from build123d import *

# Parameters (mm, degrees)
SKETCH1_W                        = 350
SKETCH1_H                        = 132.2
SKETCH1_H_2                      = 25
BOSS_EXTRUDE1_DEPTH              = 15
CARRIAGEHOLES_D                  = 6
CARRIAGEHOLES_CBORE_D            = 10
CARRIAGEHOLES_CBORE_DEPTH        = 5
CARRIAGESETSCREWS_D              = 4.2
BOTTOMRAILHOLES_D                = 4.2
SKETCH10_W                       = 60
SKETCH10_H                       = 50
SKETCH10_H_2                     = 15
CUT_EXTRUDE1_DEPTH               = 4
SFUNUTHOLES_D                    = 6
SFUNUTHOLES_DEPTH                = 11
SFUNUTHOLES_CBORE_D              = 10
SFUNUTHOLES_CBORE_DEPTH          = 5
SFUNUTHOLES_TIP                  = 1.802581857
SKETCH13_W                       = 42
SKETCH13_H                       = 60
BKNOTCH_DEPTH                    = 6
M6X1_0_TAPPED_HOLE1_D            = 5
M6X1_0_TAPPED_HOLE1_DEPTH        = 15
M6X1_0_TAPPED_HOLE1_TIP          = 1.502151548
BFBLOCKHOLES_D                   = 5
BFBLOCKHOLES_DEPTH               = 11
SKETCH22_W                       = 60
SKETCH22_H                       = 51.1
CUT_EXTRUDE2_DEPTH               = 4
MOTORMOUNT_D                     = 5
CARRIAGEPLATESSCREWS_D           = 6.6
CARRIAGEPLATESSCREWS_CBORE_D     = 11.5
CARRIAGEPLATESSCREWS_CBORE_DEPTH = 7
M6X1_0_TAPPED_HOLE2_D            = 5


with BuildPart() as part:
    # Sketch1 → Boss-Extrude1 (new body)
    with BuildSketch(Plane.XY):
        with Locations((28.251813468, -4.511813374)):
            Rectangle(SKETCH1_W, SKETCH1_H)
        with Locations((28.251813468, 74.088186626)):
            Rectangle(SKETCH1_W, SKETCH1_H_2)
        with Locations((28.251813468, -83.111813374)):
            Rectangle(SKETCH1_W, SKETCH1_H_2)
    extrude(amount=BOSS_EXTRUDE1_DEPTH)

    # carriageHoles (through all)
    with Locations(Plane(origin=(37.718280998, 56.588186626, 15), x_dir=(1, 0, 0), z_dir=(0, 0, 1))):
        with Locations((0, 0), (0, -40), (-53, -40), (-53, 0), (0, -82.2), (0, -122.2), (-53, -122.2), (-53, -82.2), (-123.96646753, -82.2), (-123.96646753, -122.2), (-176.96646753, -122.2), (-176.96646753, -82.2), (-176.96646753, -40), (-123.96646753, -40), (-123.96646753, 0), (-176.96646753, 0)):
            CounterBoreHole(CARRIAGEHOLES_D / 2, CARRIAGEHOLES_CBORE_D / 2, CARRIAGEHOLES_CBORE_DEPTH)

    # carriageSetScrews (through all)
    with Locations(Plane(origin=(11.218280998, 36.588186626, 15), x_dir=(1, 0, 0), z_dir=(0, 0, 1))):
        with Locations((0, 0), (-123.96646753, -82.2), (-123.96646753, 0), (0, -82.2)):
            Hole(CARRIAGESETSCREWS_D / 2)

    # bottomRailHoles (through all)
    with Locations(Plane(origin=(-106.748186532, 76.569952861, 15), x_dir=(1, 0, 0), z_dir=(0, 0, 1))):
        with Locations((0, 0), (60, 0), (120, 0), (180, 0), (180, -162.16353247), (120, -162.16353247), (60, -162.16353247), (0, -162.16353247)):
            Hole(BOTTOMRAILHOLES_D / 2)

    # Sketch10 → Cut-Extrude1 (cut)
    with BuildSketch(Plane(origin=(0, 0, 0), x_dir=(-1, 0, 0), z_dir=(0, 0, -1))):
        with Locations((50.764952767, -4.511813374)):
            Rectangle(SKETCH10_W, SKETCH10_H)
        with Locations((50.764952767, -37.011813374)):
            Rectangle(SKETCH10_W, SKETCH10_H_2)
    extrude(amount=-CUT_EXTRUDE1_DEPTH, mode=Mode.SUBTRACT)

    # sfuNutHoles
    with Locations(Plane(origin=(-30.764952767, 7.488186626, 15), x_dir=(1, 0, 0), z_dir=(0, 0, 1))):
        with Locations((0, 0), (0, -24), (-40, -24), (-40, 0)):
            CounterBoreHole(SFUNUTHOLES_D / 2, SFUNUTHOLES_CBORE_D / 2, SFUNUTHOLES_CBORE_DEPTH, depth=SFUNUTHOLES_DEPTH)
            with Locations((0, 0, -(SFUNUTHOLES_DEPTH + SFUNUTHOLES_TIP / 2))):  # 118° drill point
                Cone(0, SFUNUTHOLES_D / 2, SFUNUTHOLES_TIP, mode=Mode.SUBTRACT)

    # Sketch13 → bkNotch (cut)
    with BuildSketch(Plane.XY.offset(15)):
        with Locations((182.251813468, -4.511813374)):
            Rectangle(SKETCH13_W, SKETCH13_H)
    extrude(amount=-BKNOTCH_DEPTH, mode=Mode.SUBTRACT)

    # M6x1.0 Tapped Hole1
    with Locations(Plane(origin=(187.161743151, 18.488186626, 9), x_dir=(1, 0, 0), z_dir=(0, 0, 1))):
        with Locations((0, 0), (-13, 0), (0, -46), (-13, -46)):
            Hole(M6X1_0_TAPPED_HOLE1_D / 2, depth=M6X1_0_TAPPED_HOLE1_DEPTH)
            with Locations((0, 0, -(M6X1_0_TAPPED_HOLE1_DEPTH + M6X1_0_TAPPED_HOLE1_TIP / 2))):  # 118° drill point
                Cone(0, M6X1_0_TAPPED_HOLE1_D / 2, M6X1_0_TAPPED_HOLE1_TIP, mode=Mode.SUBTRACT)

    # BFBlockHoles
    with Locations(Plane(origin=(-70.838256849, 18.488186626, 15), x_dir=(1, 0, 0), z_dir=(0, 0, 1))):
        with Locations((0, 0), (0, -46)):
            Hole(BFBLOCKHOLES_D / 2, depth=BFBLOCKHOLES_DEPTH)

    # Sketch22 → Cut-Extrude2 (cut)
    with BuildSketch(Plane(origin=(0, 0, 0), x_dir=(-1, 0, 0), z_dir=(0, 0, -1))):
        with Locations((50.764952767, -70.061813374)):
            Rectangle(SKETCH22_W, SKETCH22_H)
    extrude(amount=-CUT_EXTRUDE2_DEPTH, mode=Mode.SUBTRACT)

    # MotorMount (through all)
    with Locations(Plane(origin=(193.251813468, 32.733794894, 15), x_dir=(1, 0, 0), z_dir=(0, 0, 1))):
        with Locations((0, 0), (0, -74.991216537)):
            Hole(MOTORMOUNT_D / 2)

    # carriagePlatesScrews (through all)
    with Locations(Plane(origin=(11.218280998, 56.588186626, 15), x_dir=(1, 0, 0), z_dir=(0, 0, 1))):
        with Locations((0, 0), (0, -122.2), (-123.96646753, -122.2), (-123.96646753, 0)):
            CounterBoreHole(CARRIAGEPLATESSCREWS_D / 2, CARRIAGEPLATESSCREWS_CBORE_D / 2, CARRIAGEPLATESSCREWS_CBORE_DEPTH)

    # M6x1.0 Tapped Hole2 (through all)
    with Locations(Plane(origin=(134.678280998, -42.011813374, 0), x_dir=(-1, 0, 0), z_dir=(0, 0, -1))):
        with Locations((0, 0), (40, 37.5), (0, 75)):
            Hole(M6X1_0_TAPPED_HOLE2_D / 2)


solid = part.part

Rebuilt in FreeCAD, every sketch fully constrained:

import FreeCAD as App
import Part
import Sketcher
Q = App.Units.Quantity

doc = App.newDocument("Part")
body = doc.addObject("PartDesign::Body", "Body")

# Sketch on XY plane
sketch1 = body.newObject("Sketcher::SketchObject", "Sketch")
sketch1.AttachmentSupport = (doc.getObject("XY_Plane"), [""])
sketch1.MapMode = "FlatFace"
sketch1.addGeometry([
    Part.LineSegment(App.Vector(203, 87, 0), App.Vector(-147, 87, 0)),
    Part.LineSegment(App.Vector(-147, 87, 0), App.Vector(-147, -96, 0)),
    Part.LineSegment(App.Vector(-147, -96, 0), App.Vector(203, -96, 0)),
    Part.LineSegment(App.Vector(203, -96, 0), App.Vector(203, 87, 0)),
], False)
sketch1.addConstraint([
    Sketcher.Constraint("Coincident", 0, 2, 1, 1),
    Sketcher.Constraint("Coincident", 1, 2, 2, 1),
    Sketcher.Constraint("Coincident", 2, 2, 3, 1),
    Sketcher.Constraint("Coincident", 3, 2, 0, 1),
    Sketcher.Constraint("Horizontal", 0),
    Sketcher.Constraint("Vertical", 1),
    Sketcher.Constraint("Horizontal", 2),
    Sketcher.Constraint("Vertical", 3),
    Sketcher.Constraint("DistanceX", 0, 2, 0, 1, Q("350 mm")),
    Sketcher.Constraint("DistanceY", 1, 2, 1, 1, Q("182.2 mm")),
    Sketcher.Constraint("DistanceX", 0, 2, -1, 1, Q("146.748187 mm")),
    Sketcher.Constraint("DistanceY", -1, 1, 0, 2, Q("86.588187 mm")),
])
pad1 = body.newObject("PartDesign::Pad", "Pad")
pad1.Profile = sketch1
pad1.Length = 15

# Sketch on XY plane
sketch2 = body.newObject("Sketcher::SketchObject", "Sketch001")
sketch2.AttachmentSupport = (doc.getObject("XY_Plane"), [""])
sketch2.MapMode = "FlatFace"
sketch2.AttachmentOffset = App.Placement(App.Vector(0, 0, 15), App.Rotation())
sketch2.addGeometry([
    Part.Circle(App.Vector(37.7, 56.6, 0), App.Vector(0, 0, 1), 3),  # 0
    Part.Circle(App.Vector(37.7, 16.6, 0), App.Vector(0, 0, 1), 3),  # 1
    Part.Circle(App.Vector(-15.3, 16.6, 0), App.Vector(0, 0, 1), 3),  # 2
    Part.Circle(App.Vector(-15.3, 56.6, 0), App.Vector(0, 0, 1), 3),  # 3
    Part.Circle(App.Vector(37.7, -25.6, 0), App.Vector(0, 0, 1), 3),  # 4
    Part.Circle(App.Vector(37.7, -65.6, 0), App.Vector(0, 0, 1), 3),  # 5
    Part.Circle(App.Vector(-15.3, -65.6, 0), App.Vector(0, 0, 1), 3),  # 6
    Part.Circle(App.Vector(-15.3, -25.6, 0), App.Vector(0, 0, 1), 3),  # 7
    Part.Circle(App.Vector(-86.2, -25.6, 0), App.Vector(0, 0, 1), 3),  # 8
    Part.Circle(App.Vector(-86.2, -65.6, 0), App.Vector(0, 0, 1), 3),  # 9
    Part.Circle(App.Vector(-139.2, -65.6, 0), App.Vector(0, 0, 1), 3),  # 10
    Part.Circle(App.Vector(-139.2, -25.6, 0), App.Vector(0, 0, 1), 3),  # 11
    Part.Circle(App.Vector(-139.2, 16.6, 0), App.Vector(0, 0, 1), 3),  # 12
    Part.Circle(App.Vector(-86.2, 16.6, 0), App.Vector(0, 0, 1), 3),  # 13
    Part.Circle(App.Vector(-86.2, 56.6, 0), App.Vector(0, 0, 1), 3),  # 14
    Part.Circle(App.Vector(-139.2, 56.6, 0), App.Vector(0, 0, 1), 3),  # 15
], False)
sketch2.addConstraint([
    Sketcher.Constraint("Equal", 0, 1),
    Sketcher.Constraint("Equal", 1, 2),
    Sketcher.Constraint("Equal", 2, 3),
    Sketcher.Constraint("Equal", 3, 4),
    Sketcher.Constraint("Equal", 4, 5),
    Sketcher.Constraint("Equal", 5, 6),
    Sketcher.Constraint("Equal", 6, 7),
    Sketcher.Constraint("Equal", 7, 8),
    Sketcher.Constraint("Equal", 8, 9),
    Sketcher.Constraint("Equal", 9, 10),
    Sketcher.Constraint("Equal", 10, 11),
    Sketcher.Constraint("Equal", 11, 12),
    Sketcher.Constraint("Equal", 12, 13),
    Sketcher.Constraint("Equal", 13, 14),
    Sketcher.Constraint("Equal", 14, 15),
    Sketcher.Constraint("Horizontal", 1, 3, 2, 3),
    Sketcher.Constraint("Horizontal", 0, 3, 3, 3),
    Sketcher.Constraint("Horizontal", 5, 3, 6, 3),
    Sketcher.Constraint("Horizontal", 4, 3, 7, 3),
    Sketcher.Constraint("Horizontal", 7, 3, 8, 3),
    Sketcher.Constraint("Horizontal", 6, 3, 9, 3),
    Sketcher.Constraint("Horizontal", 9, 3, 10, 3),
    Sketcher.Constraint("Horizontal", 8, 3, 11, 3),
    Sketcher.Constraint("Horizontal", 2, 3, 12, 3),
    Sketcher.Constraint("Horizontal", 12, 3, 13, 3),
    Sketcher.Constraint("Horizontal", 3, 3, 14, 3),
    Sketcher.Constraint("Horizontal", 14, 3, 15, 3),
    Sketcher.Constraint("Vertical", 0, 3, 1, 3),
    Sketcher.Constraint("Vertical", 2, 3, 3, 3),
    Sketcher.Constraint("Vertical", 1, 3, 4, 3),
    Sketcher.Constraint("Vertical", 4, 3, 5, 3),
    Sketcher.Constraint("Vertical", 3, 3, 6, 3),
    Sketcher.Constraint("Vertical", 6, 3, 7, 3),
    Sketcher.Constraint("Vertical", 8, 3, 9, 3),
    Sketcher.Constraint("Vertical", 10, 3, 11, 3),
    Sketcher.Constraint("Vertical", 11, 3, 12, 3),
    Sketcher.Constraint("Vertical", 9, 3, 13, 3),
    Sketcher.Constraint("Vertical", 13, 3, 14, 3),
    Sketcher.Constraint("Vertical", 12, 3, 15, 3),
    Sketcher.Constraint("Diameter", 0, Q("6 mm")),
    Sketcher.Constraint("DistanceY", 1, 3, 0, 3, Q("40 mm")),
    Sketcher.Constraint("DistanceX", 2, 3, 1, 3, Q("53 mm")),
    Sketcher.Constraint("DistanceY", 5, 3, 4, 3, Q("40 mm")),
    Sketcher.Constraint("DistanceX", 10, 3, 9, 3, Q("53 mm")),
    Sketcher.Constraint("DistanceY", 4, 3, 1, 3, Q("42.2 mm")),
    Sketcher.Constraint("DistanceX", -1, 1, 0, 3, Q("37.718281 mm")),
    Sketcher.Constraint("DistanceY", -1, 1, 0, 3, Q("56.588187 mm")),
    Sketcher.Constraint("DistanceX", 8, 3, -1, 1, Q("86.248187 mm")),
])
doc.recompute()
hole = body.newObject("PartDesign::Hole", "Hole")
hole.Profile = sketch2
hole.ThreadType = "None"
hole.Diameter = 6
hole.DepthType = "ThroughAll"
hole.HoleCutType = "Counterbore"
hole.HoleCutDiameter = 10
hole.HoleCutDepth = 5

# Sketch on XY plane
sketch3 = body.newObject("Sketcher::SketchObject", "Sketch002")
sketch3.AttachmentSupport = (doc.getObject("XY_Plane"), [""])
sketch3.MapMode = "FlatFace"
sketch3.AttachmentOffset = App.Placement(App.Vector(0, 0, 15), App.Rotation())
sketch3.addGeometry([
    Part.Circle(App.Vector(11.2, 36.6, 0), App.Vector(0, 0, 1), 2.1),
    Part.Circle(App.Vector(-112.7, -45.6, 0), App.Vector(0, 0, 1), 2.1),
    Part.Circle(App.Vector(-112.7, 36.6, 0), App.Vector(0, 0, 1), 2.1),
    Part.Circle(App.Vector(11.2, -45.6, 0), App.Vector(0, 0, 1), 2.1),
], False)
sketch3.addConstraint([
    Sketcher.Constraint("Equal", 0, 1),
    Sketcher.Constraint("Equal", 1, 2),
    Sketcher.Constraint("Equal", 2, 3),
    Sketcher.Constraint("Horizontal", 0, 3, 2, 3),
    Sketcher.Constraint("Horizontal", 1, 3, 3, 3),
    Sketcher.Constraint("Vertical", 1, 3, 2, 3),
    Sketcher.Constraint("Vertical", 0, 3, 3, 3),
    Sketcher.Constraint("Diameter", 0, Q("4.2 mm")),
    Sketcher.Constraint("DistanceY", 1, 3, 0, 3, Q("82.2 mm")),
    Sketcher.Constraint("DistanceX", -1, 1, 0, 3, Q("11.218281 mm")),
    Sketcher.Constraint("DistanceY", -1, 1, 0, 3, Q("36.588187 mm")),
    Sketcher.Constraint("DistanceX", 1, 3, -1, 1, Q("112.748187 mm")),
])
doc.recompute()
hole2 = body.newObject("PartDesign::Hole", "Hole001")
hole2.Profile = sketch3
hole2.ThreadType = "None"
hole2.Diameter = 4.2
hole2.DepthType = "ThroughAll"

# Sketch on XY plane
sketch4 = body.newObject("Sketcher::SketchObject", "Sketch003")
sketch4.AttachmentSupport = (doc.getObject("XY_Plane"), [""])
sketch4.MapMode = "FlatFace"
sketch4.AttachmentOffset = App.Placement(App.Vector(0, 0, 15), App.Rotation())
sketch4.addGeometry([
    Part.Circle(App.Vector(-106.7, 76.6, 0), App.Vector(0, 0, 1), 2.1),  # 0
    Part.Circle(App.Vector(-46.7, 76.6, 0), App.Vector(0, 0, 1), 2.1),  # 1
    Part.Circle(App.Vector(13.3, 76.6, 0), App.Vector(0, 0, 1), 2.1),  # 2
    Part.Circle(App.Vector(73.3, 76.6, 0), App.Vector(0, 0, 1), 2.1),  # 3
    Part.Circle(App.Vector(73.3, -85.6, 0), App.Vector(0, 0, 1), 2.1),  # 4
    Part.Circle(App.Vector(13.3, -85.6, 0), App.Vector(0, 0, 1), 2.1),  # 5
    Part.Circle(App.Vector(-46.7, -85.6, 0), App.Vector(0, 0, 1), 2.1),  # 6
    Part.Circle(App.Vector(-106.7, -85.6, 0), App.Vector(0, 0, 1), 2.1),  # 7
], False)
sketch4.addConstraint([
    Sketcher.Constraint("Equal", 0, 1),
    Sketcher.Constraint("Equal", 1, 2),
    Sketcher.Constraint("Equal", 2, 3),
    Sketcher.Constraint("Equal", 3, 4),
    Sketcher.Constraint("Equal", 4, 5),
    Sketcher.Constraint("Equal", 5, 6),
    Sketcher.Constraint("Equal", 6, 7),
    Sketcher.Constraint("Horizontal", 0, 3, 1, 3),
    Sketcher.Constraint("Horizontal", 1, 3, 2, 3),
    Sketcher.Constraint("Horizontal", 2, 3, 3, 3),
    Sketcher.Constraint("Horizontal", 4, 3, 5, 3),
    Sketcher.Constraint("Horizontal", 5, 3, 6, 3),
    Sketcher.Constraint("Horizontal", 6, 3, 7, 3),
    Sketcher.Constraint("Vertical", 3, 3, 4, 3),
    Sketcher.Constraint("Vertical", 2, 3, 5, 3),
    Sketcher.Constraint("Vertical", 1, 3, 6, 3),
    Sketcher.Constraint("Vertical", 0, 3, 7, 3),
    Sketcher.Constraint("Diameter", 0, Q("4.2 mm")),
    Sketcher.Constraint("DistanceX", 0, 3, 1, 3, Q("60 mm")),
    Sketcher.Constraint("DistanceX", 1, 3, 2, 3, Q("60 mm")),
    Sketcher.Constraint("DistanceX", 2, 3, 3, 3, Q("60 mm")),
    Sketcher.Constraint("DistanceY", 4, 3, -1, 1, Q("85.59358 mm")),
    Sketcher.Constraint("DistanceX", 0, 3, -1, 1, Q("106.748187 mm")),
    Sketcher.Constraint("DistanceY", -1, 1, 0, 3, Q("76.569953 mm")),
])
doc.recompute()
hole3 = body.newObject("PartDesign::Hole", "Hole002")
hole3.Profile = sketch4
hole3.ThreadType = "None"
hole3.Diameter = 4.2
hole3.DepthType = "ThroughAll"

# Sketch on XY plane
sketch5 = body.newObject("Sketcher::SketchObject", "Sketch004")
sketch5.AttachmentSupport = (doc.getObject("XY_Plane"), [""])
sketch5.MapMode = "FlatFace"
sketch5.addGeometry([
    Part.LineSegment(App.Vector(-21, 20, 0), App.Vector(-21, -45, 0)),
    Part.LineSegment(App.Vector(-21, -45, 0), App.Vector(-81, -45, 0)),
    Part.LineSegment(App.Vector(-81, -45, 0), App.Vector(-81, 20, 0)),
    Part.LineSegment(App.Vector(-81, 20, 0), App.Vector(-21, 20, 0)),
], False)
sketch5.addConstraint([
    Sketcher.Constraint("Coincident", 0, 2, 1, 1),
    Sketcher.Constraint("Coincident", 1, 2, 2, 1),
    Sketcher.Constraint("Coincident", 2, 2, 3, 1),
    Sketcher.Constraint("Coincident", 3, 2, 0, 1),
    Sketcher.Constraint("Vertical", 0),
    Sketcher.Constraint("Horizontal", 1),
    Sketcher.Constraint("Vertical", 2),
    Sketcher.Constraint("Horizontal", 3),
    Sketcher.Constraint("DistanceX", 1, 2, 1, 1, Q("60 mm")),
    Sketcher.Constraint("DistanceY", 0, 2, 0, 1, Q("65 mm")),
    Sketcher.Constraint("DistanceX", 0, 2, -1, 1, Q("20.764953 mm")),
    Sketcher.Constraint("DistanceY", 0, 2, -1, 1, Q("44.511813 mm")),
])
pocket1 = body.newObject("PartDesign::Pocket", "Pocket")
pocket1.Profile = sketch5
pocket1.Length = 4
pocket1.Reversed = True

# Sketch on XY plane
sketch6 = body.newObject("Sketcher::SketchObject", "Sketch005")
sketch6.AttachmentSupport = (doc.getObject("XY_Plane"), [""])
sketch6.MapMode = "FlatFace"
sketch6.AttachmentOffset = App.Placement(App.Vector(0, 0, 15), App.Rotation())
sketch6.addGeometry([
    Part.Circle(App.Vector(-30.8, 7.5, 0), App.Vector(0, 0, 1), 3),
    Part.Circle(App.Vector(-30.8, -16.5, 0), App.Vector(0, 0, 1), 3),
    Part.Circle(App.Vector(-70.8, -16.5, 0), App.Vector(0, 0, 1), 3),
    Part.Circle(App.Vector(-70.8, 7.5, 0), App.Vector(0, 0, 1), 3),
], False)
sketch6.addConstraint([
    Sketcher.Constraint("Equal", 0, 1),
    Sketcher.Constraint("Equal", 1, 2),
    Sketcher.Constraint("Equal", 2, 3),
    Sketcher.Constraint("Horizontal", 1, 3, 2, 3),
    Sketcher.Constraint("Horizontal", 0, 3, 3, 3),
    Sketcher.Constraint("Vertical", 0, 3, 1, 3),
    Sketcher.Constraint("Vertical", 2, 3, 3, 3),
    Sketcher.Constraint("Diameter", 0, Q("6 mm")),
    Sketcher.Constraint("DistanceY", 1, 3, 0, 3, Q("24 mm")),
    Sketcher.Constraint("DistanceX", 2, 3, 1, 3, Q("40 mm")),
    Sketcher.Constraint("DistanceX", 0, 3, -1, 1, Q("30.764953 mm")),
    Sketcher.Constraint("DistanceY", -1, 1, 0, 3, Q("7.488187 mm")),
])
doc.recompute()
hole4 = body.newObject("PartDesign::Hole", "Hole003")
hole4.Profile = sketch6
hole4.ThreadType = "None"
hole4.Diameter = 6
hole4.DepthType = "Dimension"
hole4.Depth = 11
hole4.DrillPoint = "Angled"
hole4.DrillPointAngle = 118
hole4.HoleCutType = "Counterbore"
hole4.HoleCutDiameter = 10
hole4.HoleCutDepth = 5

# Sketch on XY plane
sketch7 = body.newObject("Sketcher::SketchObject", "Sketch006")
sketch7.AttachmentSupport = (doc.getObject("XY_Plane"), [""])
sketch7.MapMode = "FlatFace"
sketch7.AttachmentOffset = App.Placement(App.Vector(0, 0, 15), App.Rotation())
sketch7.addGeometry([
    Part.LineSegment(App.Vector(161, 25, 0), App.Vector(161, -35, 0)),
    Part.LineSegment(App.Vector(161, -35, 0), App.Vector(203, -35, 0)),
    Part.LineSegment(App.Vector(203, -35, 0), App.Vector(203, 25, 0)),
    Part.LineSegment(App.Vector(203, 25, 0), App.Vector(161, 25, 0)),
], False)
sketch7.addConstraint([
    Sketcher.Constraint("Coincident", 0, 2, 1, 1),
    Sketcher.Constraint("Coincident", 1, 2, 2, 1),
    Sketcher.Constraint("Coincident", 2, 2, 3, 1),
    Sketcher.Constraint("Coincident", 3, 2, 0, 1),
    Sketcher.Constraint("Vertical", 0),
    Sketcher.Constraint("Horizontal", 1),
    Sketcher.Constraint("Vertical", 2),
    Sketcher.Constraint("Horizontal", 3),
    Sketcher.Constraint("DistanceX", 1, 1, 1, 2, Q("42 mm")),
    Sketcher.Constraint("DistanceY", 0, 2, 0, 1, Q("60 mm")),
    Sketcher.Constraint("DistanceX", -1, 1, 0, 2, Q("161.251813 mm")),
    Sketcher.Constraint("DistanceY", 0, 2, -1, 1, Q("34.511813 mm")),
])
pocket2 = body.newObject("PartDesign::Pocket", "Pocket001")
pocket2.Profile = sketch7
pocket2.Length = 6

# Sketch on XY plane
sketch8 = body.newObject("Sketcher::SketchObject", "Sketch007")
sketch8.AttachmentSupport = (doc.getObject("XY_Plane"), [""])
sketch8.MapMode = "FlatFace"
sketch8.AttachmentOffset = App.Placement(App.Vector(0, 0, 9), App.Rotation())
sketch8.addGeometry([
    Part.Circle(App.Vector(187.2, 18.5, 0), App.Vector(0, 0, 1), 2.5),
    Part.Circle(App.Vector(174.2, 18.5, 0), App.Vector(0, 0, 1), 2.5),
    Part.Circle(App.Vector(187.2, -27.5, 0), App.Vector(0, 0, 1), 2.5),
    Part.Circle(App.Vector(174.2, -27.5, 0), App.Vector(0, 0, 1), 2.5),
], False)
sketch8.addConstraint([
    Sketcher.Constraint("Equal", 0, 1),
    Sketcher.Constraint("Equal", 1, 2),
    Sketcher.Constraint("Equal", 2, 3),
    Sketcher.Constraint("Horizontal", 0, 3, 1, 3),
    Sketcher.Constraint("Horizontal", 2, 3, 3, 3),
    Sketcher.Constraint("Vertical", 0, 3, 2, 3),
    Sketcher.Constraint("Vertical", 1, 3, 3, 3),
    Sketcher.Constraint("Diameter", 0, Q("5 mm")),
    Sketcher.Constraint("DistanceX", 1, 3, 0, 3, Q("13 mm")),
    Sketcher.Constraint("DistanceY", 2, 3, 0, 3, Q("46 mm")),
    Sketcher.Constraint("DistanceX", -1, 1, 0, 3, Q("187.161743 mm")),
    Sketcher.Constraint("DistanceY", -1, 1, 0, 3, Q("18.488187 mm")),
])
doc.recompute()
hole5 = body.newObject("PartDesign::Hole", "Hole004")
hole5.Profile = sketch8
hole5.ThreadType = "None"
hole5.Diameter = 5
hole5.DepthType = "Dimension"
hole5.Depth = 15
hole5.DrillPoint = "Angled"
hole5.DrillPointAngle = 118

# Sketch on XY plane
sketch9 = body.newObject("Sketcher::SketchObject", "Sketch008")
sketch9.AttachmentSupport = (doc.getObject("XY_Plane"), [""])
sketch9.MapMode = "FlatFace"
sketch9.AttachmentOffset = App.Placement(App.Vector(0, 0, 15), App.Rotation())
sketch9.addGeometry([
    Part.Circle(App.Vector(-70.8, 18.5, 0), App.Vector(0, 0, 1), 2.5),
    Part.Circle(App.Vector(-70.8, -27.5, 0), App.Vector(0, 0, 1), 2.5),
], False)
sketch9.addConstraint([
    Sketcher.Constraint("Equal", 0, 1),
    Sketcher.Constraint("Vertical", 0, 3, 1, 3),
    Sketcher.Constraint("Diameter", 0, Q("5 mm")),
    Sketcher.Constraint("DistanceY", 1, 3, 0, 3, Q("46 mm")),
    Sketcher.Constraint("DistanceX", 0, 3, -1, 1, Q("70.838257 mm")),
    Sketcher.Constraint("DistanceY", -1, 1, 0, 3, Q("18.488187 mm")),
])
doc.recompute()
hole6 = body.newObject("PartDesign::Hole", "Hole005")
hole6.Profile = sketch9
hole6.ThreadType = "None"
hole6.Diameter = 5
hole6.DepthType = "Dimension"
hole6.Depth = 11
hole6.DrillPoint = "Flat"

# Sketch on XY plane
sketch10 = body.newObject("Sketcher::SketchObject", "Sketch009")
sketch10.AttachmentSupport = (doc.getObject("XY_Plane"), [""])
sketch10.MapMode = "FlatFace"
sketch10.addGeometry([
    Part.LineSegment(App.Vector(-21, -45, 0), App.Vector(-21, -96, 0)),
    Part.LineSegment(App.Vector(-21, -96, 0), App.Vector(-81, -96, 0)),
    Part.LineSegment(App.Vector(-81, -96, 0), App.Vector(-81, -45, 0)),
    Part.LineSegment(App.Vector(-81, -45, 0), App.Vector(-21, -45, 0)),
], False)
sketch10.addConstraint([
    Sketcher.Constraint("Coincident", 0, 2, 1, 1),
    Sketcher.Constraint("Coincident", 1, 2, 2, 1),
    Sketcher.Constraint("Coincident", 2, 2, 3, 1),
    Sketcher.Constraint("Coincident", 3, 2, 0, 1),
    Sketcher.Constraint("Vertical", 0),
    Sketcher.Constraint("Horizontal", 1),
    Sketcher.Constraint("Vertical", 2),
    Sketcher.Constraint("Horizontal", 3),
    Sketcher.Constraint("DistanceX", 1, 2, 1, 1, Q("60 mm")),
    Sketcher.Constraint("DistanceY", 0, 2, 0, 1, Q("51.1 mm")),
    Sketcher.Constraint("DistanceX", 0, 2, -1, 1, Q("20.764953 mm")),
    Sketcher.Constraint("DistanceY", 0, 2, -1, 1, Q("95.611813 mm")),
])
pocket3 = body.newObject("PartDesign::Pocket", "Pocket002")
pocket3.Profile = sketch10
pocket3.Length = 4
pocket3.Reversed = True

# Sketch on XY plane
sketch11 = body.newObject("Sketcher::SketchObject", "Sketch010")
sketch11.AttachmentSupport = (doc.getObject("XY_Plane"), [""])
sketch11.MapMode = "FlatFace"
sketch11.AttachmentOffset = App.Placement(App.Vector(0, 0, 15), App.Rotation())
sketch11.addGeometry([
    Part.Circle(App.Vector(193.3, 32.7, 0), App.Vector(0, 0, 1), 2.5),
    Part.Circle(App.Vector(193.3, -42.3, 0), App.Vector(0, 0, 1), 2.5),
], False)
sketch11.addConstraint([
    Sketcher.Constraint("Equal", 0, 1),
    Sketcher.Constraint("Vertical", 0, 3, 1, 3),
    Sketcher.Constraint("Diameter", 0, Q("5 mm")),
    Sketcher.Constraint("DistanceY", 1, 3, -1, 1, Q("42.257422 mm")),
    Sketcher.Constraint("DistanceX", -1, 1, 0, 3, Q("193.251813 mm")),
    Sketcher.Constraint("DistanceY", -1, 1, 0, 3, Q("32.733795 mm")),
])
doc.recompute()
hole7 = body.newObject("PartDesign::Hole", "Hole006")
hole7.Profile = sketch11
hole7.ThreadType = "None"
hole7.Diameter = 5
hole7.DepthType = "ThroughAll"

# Sketch on XY plane
sketch12 = body.newObject("Sketcher::SketchObject", "Sketch011")
sketch12.AttachmentSupport = (doc.getObject("XY_Plane"), [""])
sketch12.MapMode = "FlatFace"
sketch12.AttachmentOffset = App.Placement(App.Vector(0, 0, 15), App.Rotation())
sketch12.addGeometry([
    Part.Circle(App.Vector(11.2, 56.6, 0), App.Vector(0, 0, 1), 3.3),
    Part.Circle(App.Vector(11.2, -65.6, 0), App.Vector(0, 0, 1), 3.3),
    Part.Circle(App.Vector(-112.7, -65.6, 0), App.Vector(0, 0, 1), 3.3),
    Part.Circle(App.Vector(-112.7, 56.6, 0), App.Vector(0, 0, 1), 3.3),
], False)
sketch12.addConstraint([
    Sketcher.Constraint("Equal", 0, 1),
    Sketcher.Constraint("Equal", 1, 2),
    Sketcher.Constraint("Equal", 2, 3),
    Sketcher.Constraint("Horizontal", 1, 3, 2, 3),
    Sketcher.Constraint("Horizontal", 0, 3, 3, 3),
    Sketcher.Constraint("Vertical", 0, 3, 1, 3),
    Sketcher.Constraint("Vertical", 2, 3, 3, 3),
    Sketcher.Constraint("Diameter", 0, Q("6.6 mm")),
    Sketcher.Constraint("DistanceY", 1, 3, 0, 3, Q("122.2 mm")),
    Sketcher.Constraint("DistanceX", -1, 1, 0, 3, Q("11.218281 mm")),
    Sketcher.Constraint("DistanceY", -1, 1, 0, 3, Q("56.588187 mm")),
    Sketcher.Constraint("DistanceX", 2, 3, -1, 1, Q("112.748187 mm")),
])
doc.recompute()
hole8 = body.newObject("PartDesign::Hole", "Hole007")
hole8.Profile = sketch12
hole8.ThreadType = "None"
hole8.Diameter = 6.6
hole8.DepthType = "ThroughAll"
hole8.HoleCutType = "Counterbore"
hole8.HoleCutDiameter = 11.5
hole8.HoleCutDepth = 7

# Sketch on XY plane
sketch13 = body.newObject("Sketcher::SketchObject", "Sketch012")
sketch13.AttachmentSupport = (doc.getObject("XY_Plane"), [""])
sketch13.MapMode = "FlatFace"
sketch13.addGeometry([
    Part.Circle(App.Vector(134.7, -42, 0), App.Vector(0, 0, 1), 2.5),
    Part.Circle(App.Vector(94.7, -4.5, 0), App.Vector(0, 0, 1), 2.5),
    Part.Circle(App.Vector(134.7, 33, 0), App.Vector(0, 0, 1), 2.5),
], False)
sketch13.addConstraint([
    Sketcher.Constraint("Equal", 0, 1),
    Sketcher.Constraint("Equal", 1, 2),
    Sketcher.Constraint("Vertical", 0, 3, 2, 3),
    Sketcher.Constraint("Diameter", 0, Q("5 mm")),
    Sketcher.Constraint("DistanceX", 1, 3, 0, 3, Q("40 mm")),
    Sketcher.Constraint("DistanceY", 0, 3, 2, 3, Q("75 mm")),
    Sketcher.Constraint("DistanceY", 0, 3, 1, 3, Q("37.5 mm")),
    Sketcher.Constraint("DistanceX", -1, 1, 0, 3, Q("134.678281 mm")),
    Sketcher.Constraint("DistanceY", 0, 3, -1, 1, Q("42.011813 mm")),
])
doc.recompute()
hole9 = body.newObject("PartDesign::Hole", "Hole008")
hole9.Profile = sketch13
hole9.ThreadType = "None"
hole9.Diameter = 5
hole9.DepthType = "ThroughAll"
hole9.Reversed = True

doc.recompute()
